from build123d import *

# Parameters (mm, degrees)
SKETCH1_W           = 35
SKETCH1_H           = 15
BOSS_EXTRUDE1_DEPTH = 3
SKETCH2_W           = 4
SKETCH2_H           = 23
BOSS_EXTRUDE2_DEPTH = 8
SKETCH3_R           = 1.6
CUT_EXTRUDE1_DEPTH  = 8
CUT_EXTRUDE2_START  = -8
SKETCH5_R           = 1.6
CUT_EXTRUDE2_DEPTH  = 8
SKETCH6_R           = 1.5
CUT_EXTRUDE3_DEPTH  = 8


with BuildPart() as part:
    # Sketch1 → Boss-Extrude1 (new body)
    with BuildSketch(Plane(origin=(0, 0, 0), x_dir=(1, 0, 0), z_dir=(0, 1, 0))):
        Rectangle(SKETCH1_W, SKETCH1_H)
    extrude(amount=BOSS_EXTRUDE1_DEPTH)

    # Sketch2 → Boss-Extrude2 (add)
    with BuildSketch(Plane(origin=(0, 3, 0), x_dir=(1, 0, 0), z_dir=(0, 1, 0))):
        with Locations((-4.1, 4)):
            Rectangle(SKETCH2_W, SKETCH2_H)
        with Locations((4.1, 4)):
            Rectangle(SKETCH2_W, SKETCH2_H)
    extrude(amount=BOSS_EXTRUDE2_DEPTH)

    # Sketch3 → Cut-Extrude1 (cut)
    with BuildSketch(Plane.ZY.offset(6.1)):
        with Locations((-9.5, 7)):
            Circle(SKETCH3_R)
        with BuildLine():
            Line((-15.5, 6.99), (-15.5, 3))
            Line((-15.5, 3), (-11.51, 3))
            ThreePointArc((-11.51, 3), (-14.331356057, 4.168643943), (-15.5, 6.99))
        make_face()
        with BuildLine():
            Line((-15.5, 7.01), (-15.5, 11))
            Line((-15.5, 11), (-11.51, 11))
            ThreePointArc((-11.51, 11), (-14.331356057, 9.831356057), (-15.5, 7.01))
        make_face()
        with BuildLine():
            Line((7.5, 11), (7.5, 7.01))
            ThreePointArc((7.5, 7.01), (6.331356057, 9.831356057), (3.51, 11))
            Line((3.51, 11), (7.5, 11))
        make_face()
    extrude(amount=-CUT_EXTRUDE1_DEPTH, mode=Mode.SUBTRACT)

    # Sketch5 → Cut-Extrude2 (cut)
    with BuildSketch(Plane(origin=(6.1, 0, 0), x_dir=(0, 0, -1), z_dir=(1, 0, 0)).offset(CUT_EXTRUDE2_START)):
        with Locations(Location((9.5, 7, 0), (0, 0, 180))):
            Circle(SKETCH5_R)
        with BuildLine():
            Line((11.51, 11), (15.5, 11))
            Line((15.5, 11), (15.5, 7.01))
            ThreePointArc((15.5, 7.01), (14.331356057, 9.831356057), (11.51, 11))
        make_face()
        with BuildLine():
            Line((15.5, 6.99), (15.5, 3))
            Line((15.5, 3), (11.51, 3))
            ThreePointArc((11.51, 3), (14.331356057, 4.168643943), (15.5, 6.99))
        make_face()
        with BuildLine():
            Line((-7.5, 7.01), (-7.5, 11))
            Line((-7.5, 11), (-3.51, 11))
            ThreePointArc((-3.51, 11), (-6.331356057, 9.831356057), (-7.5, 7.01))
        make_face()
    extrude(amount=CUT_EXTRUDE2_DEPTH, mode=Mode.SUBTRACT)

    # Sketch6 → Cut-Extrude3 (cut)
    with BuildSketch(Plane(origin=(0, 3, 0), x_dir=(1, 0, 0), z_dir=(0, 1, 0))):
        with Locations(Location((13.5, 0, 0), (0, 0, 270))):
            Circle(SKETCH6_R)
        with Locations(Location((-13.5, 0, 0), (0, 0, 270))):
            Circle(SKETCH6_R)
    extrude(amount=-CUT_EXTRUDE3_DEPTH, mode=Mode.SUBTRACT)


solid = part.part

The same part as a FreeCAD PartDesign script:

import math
import FreeCAD as App
import Part
import Sketcher


def add_polygon(sketch, points):
    """Adds a closed chain of lines whose ends are joined by coincident constraints."""
    first, n = sketch.GeometryCount, len(points)
    for a, b in zip(points, points[1:] + points[:1]):
        sketch.addGeometry(Part.LineSegment(App.Vector(*a, 0), App.Vector(*b, 0)), False)
    for i in range(n):
        sketch.addConstraint(Sketcher.Constraint("Coincident", first + i, 2, first + (i + 1) % n, 1))

doc = App.newDocument("Part")
body = doc.addObject("PartDesign::Body", "Body")

# Sketch on XZ plane
sketch1 = body.newObject("Sketcher::SketchObject", "Sketch")
sketch1.AttachmentSupport = (doc.getObject("XZ_Plane"), [""])
sketch1.MapMode = "FlatFace"
add_polygon(sketch1, [(-18, -8), (-18, 8), (18, 8), (18, -8)])  # lines 0-3
sketch1.addConstraint([
    Sketcher.Constraint("Vertical", 0),
    Sketcher.Constraint("Horizontal", 1),
    Sketcher.Constraint("Vertical", 2),
    Sketcher.Constraint("Horizontal", 3),
    Sketcher.Constraint("Symmetric", 0, 2, 2, 2, -1, 1),
    Sketcher.Constraint("DistanceX", 1, 1, 1, 2, 35.0),
    Sketcher.Constraint("DistanceY", 0, 1, 0, 2, 15.0),
])
pad1 = body.newObject("PartDesign::Pad", "Pad")
pad1.Profile = sketch1
pad1.Length = 3
pad1.Reversed = True

# Sketch on XZ plane
sketch2 = body.newObject("Sketcher::SketchObject", "Sketch001")
sketch2.AttachmentSupport = (doc.getObject("XZ_Plane"), [""])
sketch2.MapMode = "FlatFace"
sketch2.AttachmentOffset = App.Placement(App.Vector(0, 0, -3), App.Rotation())
add_polygon(sketch2, [(-6.1, -15.5), (-6.1, 7.5), (-2.1, 7.5), (-2.1, -15.5)])  # lines 0-3
add_polygon(sketch2, [(2.1, -15.5), (2.1, 7.5), (6.1, 7.5), (6.1, -15.5)])  # lines 4-7
sketch2.addConstraint([
    Sketcher.Constraint("Vertical", 0),
    Sketcher.Constraint("Horizontal", 1),
    Sketcher.Constraint("Vertical", 2),
    Sketcher.Constraint("Horizontal", 3),
    Sketcher.Constraint("Vertical", 4),
    Sketcher.Constraint("Horizontal", 5),
    Sketcher.Constraint("Vertical", 6),
    Sketcher.Constraint("Horizontal", 7),
    Sketcher.Constraint("Symmetric", 1, 2, 4, 2, -2),
    Sketcher.Constraint("Symmetric", 3, 2, 6, 2, -2),
    Sketcher.Constraint("DistanceX", 1, 1, 1, 2, 4.0),
    Sketcher.Constraint("DistanceY", 0, 1, 0, 2, 23.0),
    Sketcher.Constraint("DistanceX", 0, 2, -1, 1, 6.1),
    Sketcher.Constraint("DistanceY", -1, 1, 0, 2, 7.5),
])
pad2 = body.newObject("PartDesign::Pad", "Pad001")
pad2.Profile = sketch2
pad2.Length = 8
pad2.Reversed = True

# Sketch on YZ plane
sketch3 = body.newObject("Sketcher::SketchObject", "Sketch002")
sketch3.AttachmentSupport = (doc.getObject("YZ_Plane"), [""])
sketch3.MapMode = "FlatFace"
sketch3.AttachmentOffset = App.Placement(App.Vector(0, 0, -6.1), App.Rotation())
sketch3.addGeometry([
    Part.Circle(App.Vector(7, -9.5, 0), App.Vector(0, 0, 1), 1.6),  # 0
    Part.LineSegment(App.Vector(7, -15.5, 0), App.Vector(3, -15.5, 0)),  # 1
    Part.LineSegment(App.Vector(3, -15.5, 0), App.Vector(3, -11.5, 0)),  # 2
    Part.ArcOfCircle(Part.Circle(App.Vector(7, -11.5, 0), App.Vector(0, 0, 1), 4), math.radians(180), math.radians(270)),  # 3
    Part.LineSegment(App.Vector(11, -15.5, 0), App.Vector(7, -15.5, 0)),  # 4
    Part.ArcOfCircle(Part.Circle(App.Vector(7, -11.5, 0), App.Vector(0, 0, 1), 4), math.radians(-90), math.radians(0)),  # 5
    Part.LineSegment(App.Vector(11, -11.5, 0), App.Vector(11, -15.5, 0)),  # 6
    Part.LineSegment(App.Vector(7, 7.5, 0), App.Vector(11, 7.5, 0)),  # 7
    Part.LineSegment(App.Vector(11, 7.5, 0), App.Vector(11, 3.5, 0)),  # 8
    Part.ArcOfCircle(Part.Circle(App.Vector(7, 3.5, 0), App.Vector(0, 0, 1), 4), math.radians(0), math.radians(90)),  # 9
], False)
sketch3.addConstraint([
    Sketcher.Constraint("Coincident", 1, 2, 2, 1),
    Sketcher.Constraint("Tangent", 2, 2, 3, 1),
    Sketcher.Constraint("Tangent", 3, 2, 1, 1),
    Sketcher.Constraint("Tangent", 4, 2, 5, 1),
    Sketcher.Constraint("Tangent", 5, 2, 6, 1),
    Sketcher.Constraint("Coincident", 6, 2, 4, 1),
    Sketcher.Constraint("Coincident", 7, 2, 8, 1),
    Sketcher.Constraint("Tangent", 8, 2, 9, 1),
    Sketcher.Constraint("Tangent", 9, 2, 7, 1),
    Sketcher.Constraint("Horizontal", 1),
    Sketcher.Constraint("Vertical", 2),
    Sketcher.Constraint("Horizontal", 4),
    Sketcher.Constraint("Vertical", 6),
    Sketcher.Constraint("Horizontal", 7),
    Sketcher.Constraint("Vertical", 8),
    Sketcher.Constraint("Equal", 3, 5),
    Sketcher.Constraint("Equal", 5, 9),
    Sketcher.Constraint("Horizontal", 3, 3, 5, 3),
    Sketcher.Constraint("Vertical", 5, 3, 9, 3),
    Sketcher.Constraint("Diameter", 0, 3.2),
    Sketcher.Constraint("Radius", 3, 3.99),
    Sketcher.Constraint("DistanceX", -1, 1, 0, 3, 7.0),
    Sketcher.Constraint("DistanceX", -1, 1, 1, 2, 3.0),
    Sketcher.Constraint("DistanceX", -1, 1, 5, 2, 11.0),
    Sketcher.Constraint("DistanceY", 1, 2, 0, 3, 6.0),
    Sketcher.Constraint("DistanceY", 0, 3, 7, 2, 17.0),
    Sketcher.Constraint("DistanceY", 0, 3, -1, 1, 9.5),
])
pocket1 = body.newObject("PartDesign::Pocket", "Pocket")
pocket1.Profile = sketch3
pocket1.Length = 8
pocket1.Reversed = True

# Sketch on YZ plane
sketch4 = body.newObject("Sketcher::SketchObject", "Sketch003")
sketch4.AttachmentSupport = (doc.getObject("YZ_Plane"), [""])
sketch4.MapMode = "FlatFace"
sketch4.AttachmentOffset = App.Placement(App.Vector(0, 0, -1.9), App.Rotation())
sketch4.addGeometry([
    Part.Circle(App.Vector(7, -9.5, 0), App.Vector(0, 0, 1), 1.6),  # 0
    Part.LineSegment(App.Vector(11, -15.5, 0), App.Vector(11, -11.5, 0)),  # 1
    Part.ArcOfCircle(Part.Circle(App.Vector(7, -11.5, 0), App.Vector(0, 0, 1), 4), math.radians(-90), math.radians(0)),  # 2
    Part.LineSegment(App.Vector(7, -15.5, 0), App.Vector(11, -15.5, 0)),  # 3
    Part.LineSegment(App.Vector(3, -15.5, 0), App.Vector(7, -15.5, 0)),  # 4
    Part.ArcOfCircle(Part.Circle(App.Vector(7, -11.5, 0), App.Vector(0, 0, 1), 4), math.radians(180), math.radians(270)),  # 5
    Part.LineSegment(App.Vector(3, -11.5, 0), App.Vector(3, -15.5, 0)),  # 6
    Part.LineSegment(App.Vector(11, 7.5, 0), App.Vector(7, 7.5, 0)),  # 7
    Part.ArcOfCircle(Part.Circle(App.Vector(7, 3.5, 0), App.Vector(0, 0, 1), 4), math.radians(0), math.radians(90)),  # 8
    Part.LineSegment(App.Vector(11, 3.5, 0), App.Vector(11, 7.5, 0)),  # 9
], False)
sketch4.addConstraint([
    Sketcher.Constraint("Tangent", 1, 2, 2, 2),
    Sketcher.Constraint("Tangent", 2, 1, 3, 1),
    Sketcher.Constraint("Coincident", 3, 2, 1, 1),
    Sketcher.Constraint("Tangent", 4, 2, 5, 2),
    Sketcher.Constraint("Tangent", 5, 1, 6, 1),
    Sketcher.Constraint("Coincident", 6, 2, 4, 1),
    Sketcher.Constraint("Tangent", 7, 2, 8, 2),
    Sketcher.Constraint("Tangent", 8, 1, 9, 1),
    Sketcher.Constraint("Coincident", 9, 2, 7, 1),
    Sketcher.Constraint("Vertical", 1),
    Sketcher.Constraint("Horizontal", 3),
    Sketcher.Constraint("Horizontal", 4),
    Sketcher.Constraint("Vertical", 6),
    Sketcher.Constraint("Horizontal", 7),
    Sketcher.Constraint("Vertical", 9),
    Sketcher.Constraint("Equal", 2, 5),
    Sketcher.Constraint("Equal", 5, 8),
    Sketcher.Constraint("Horizontal", 2, 3, 5, 3),
    Sketcher.Constraint("Vertical", 2, 3, 8, 3),
    Sketcher.Constraint("Diameter", 0, 3.2),
    Sketcher.Constraint("Radius", 2, 3.99),
    Sketcher.Constraint("DistanceX", -1, 1, 0, 3, 7.0),
    Sketcher.Constraint("DistanceX", -1, 1, 1, 2, 11.0),
    Sketcher.Constraint("DistanceX", -1, 1, 5, 1, 3.0),
    Sketcher.Constraint("DistanceY", 2, 1, 0, 3, 6.0),
    Sketcher.Constraint("DistanceY", 0, 3, 7, 2, 17.0),
    Sketcher.Constraint("DistanceY", 0, 3, -1, 1, 9.5),
])
pocket2 = body.newObject("PartDesign::Pocket", "Pocket001")
pocket2.Profile = sketch4
pocket2.Length = 8
pocket2.Reversed = True

# Sketch on XZ plane
sketch5 = body.newObject("Sketcher::SketchObject", "Sketch004")
sketch5.AttachmentSupport = (doc.getObject("XZ_Plane"), [""])
sketch5.MapMode = "FlatFace"
sketch5.AttachmentOffset = App.Placement(App.Vector(0, 0, -3), App.Rotation())
sketch5.addGeometry([
    Part.Circle(App.Vector(13.5, 0, 0), App.Vector(0, 0, 1), 1.5),
    Part.Circle(App.Vector(-13.5, 0, 0), App.Vector(0, 0, 1), 1.5),
], False)
sketch5.addConstraint([
    Sketcher.Constraint("Equal", 0, 1),
    Sketcher.Constraint("Symmetric", 0, 3, 1, 3, -1, 1),
    Sketcher.Constraint("PointOnObject", 0, 3, -1),
    Sketcher.Constraint("Diameter", 0, 3.0),
    Sketcher.Constraint("DistanceX", 1, 3, 0, 3, 27.0),
])
pocket3 = body.newObject("PartDesign::Pocket", "Pocket002")
pocket3.Profile = sketch5
pocket3.Length = 8
pocket3.Reversed = True

doc.recompute()
